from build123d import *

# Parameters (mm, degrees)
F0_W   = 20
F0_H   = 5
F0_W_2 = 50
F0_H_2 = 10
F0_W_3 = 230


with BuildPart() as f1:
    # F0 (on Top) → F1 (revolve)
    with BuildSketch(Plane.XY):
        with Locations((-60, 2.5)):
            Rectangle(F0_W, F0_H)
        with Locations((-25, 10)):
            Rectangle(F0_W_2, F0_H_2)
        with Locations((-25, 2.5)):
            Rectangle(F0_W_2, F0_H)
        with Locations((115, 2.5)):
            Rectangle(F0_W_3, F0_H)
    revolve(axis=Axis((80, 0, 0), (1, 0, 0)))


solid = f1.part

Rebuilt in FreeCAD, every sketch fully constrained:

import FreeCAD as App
import Part
import Sketcher

doc = App.newDocument("Part")
body = doc.addObject("PartDesign::Body", "Body")

sketch1 = body.newObject("Sketcher::SketchObject", "Sketch")
sketch1.AttachmentSupport = (doc.getObject("XY_Plane"), [""])
sketch1.MapMode = "FlatFace"
sketch1.addGeometry([
    Part.LineSegment(App.Vector(-70, 5, 0), App.Vector(-70, 0, 0)),
    Part.LineSegment(App.Vector(-70, 0, 0), App.Vector(230, 0, 0)),
    Part.LineSegment(App.Vector(230, 0, 0), App.Vector(230, 5, 0)),
    Part.LineSegment(App.Vector(230, 5, 0), App.Vector(0, 5, 0)),
    Part.LineSegment(App.Vector(0, 5, 0), App.Vector(0, 15, 0)),
    Part.LineSegment(App.Vector(0, 15, 0), App.Vector(-50, 15, 0)),
    Part.LineSegment(App.Vector(-50, 15, 0), App.Vector(-50, 5, 0)),
    Part.LineSegment(App.Vector(-50, 5, 0), App.Vector(-70, 5, 0)),
], False)
sketch1.addConstraint([
    Sketcher.Constraint("Coincident", 0, 2, 1, 1),
    Sketcher.Constraint("Coincident", 1, 2, 2, 1),
    Sketcher.Constraint("Coincident", 2, 2, 3, 1),
    Sketcher.Constraint("Coincident", 3, 2, 4, 1),
    Sketcher.Constraint("Coincident", 4, 2, 5, 1),
    Sketcher.Constraint("Coincident", 5, 2, 6, 1),
    Sketcher.Constraint("Coincident", 6, 2, 7, 1),
    Sketcher.Constraint("Coincident", 7, 2, 0, 1),
    Sketcher.Constraint("Vertical", 0),
    Sketcher.Constraint("Horizontal", 1),
    Sketcher.Constraint("Vertical", 2),
    Sketcher.Constraint("Horizontal", 3),
    Sketcher.Constraint("Vertical", 4),
    Sketcher.Constraint("Horizontal", 5),
    Sketcher.Constraint("Vertical", 6),
    Sketcher.Constraint("Horizontal", 7),
    Sketcher.Constraint("PointOnObject", 0, 2, -1),
    Sketcher.Constraint("PointOnObject", 3, 2, -2),
    Sketcher.Constraint("Horizontal", 3, 2, 6, 2),
    Sketcher.Constraint("DistanceX", 1, 1, 1, 2, 300.0),
    Sketcher.Constraint("DistanceX", 3, 2, 3, 1, 230.0),
    Sketcher.Constraint("DistanceX", 5, 2, 5, 1, 50.0),
    Sketcher.Constraint("DistanceY", 0, 2, 0, 1, 5.0),
    Sketcher.Constraint("DistanceY", 4, 1, 4, 2, 10.0),
])
revolution = body.newObject("PartDesign::Revolution", "Revolution")
revolution.Profile = sketch1
revolution.ReferenceAxis = (sketch1, ["H_Axis"])
revolution.Angle = 360

doc.recompute()
